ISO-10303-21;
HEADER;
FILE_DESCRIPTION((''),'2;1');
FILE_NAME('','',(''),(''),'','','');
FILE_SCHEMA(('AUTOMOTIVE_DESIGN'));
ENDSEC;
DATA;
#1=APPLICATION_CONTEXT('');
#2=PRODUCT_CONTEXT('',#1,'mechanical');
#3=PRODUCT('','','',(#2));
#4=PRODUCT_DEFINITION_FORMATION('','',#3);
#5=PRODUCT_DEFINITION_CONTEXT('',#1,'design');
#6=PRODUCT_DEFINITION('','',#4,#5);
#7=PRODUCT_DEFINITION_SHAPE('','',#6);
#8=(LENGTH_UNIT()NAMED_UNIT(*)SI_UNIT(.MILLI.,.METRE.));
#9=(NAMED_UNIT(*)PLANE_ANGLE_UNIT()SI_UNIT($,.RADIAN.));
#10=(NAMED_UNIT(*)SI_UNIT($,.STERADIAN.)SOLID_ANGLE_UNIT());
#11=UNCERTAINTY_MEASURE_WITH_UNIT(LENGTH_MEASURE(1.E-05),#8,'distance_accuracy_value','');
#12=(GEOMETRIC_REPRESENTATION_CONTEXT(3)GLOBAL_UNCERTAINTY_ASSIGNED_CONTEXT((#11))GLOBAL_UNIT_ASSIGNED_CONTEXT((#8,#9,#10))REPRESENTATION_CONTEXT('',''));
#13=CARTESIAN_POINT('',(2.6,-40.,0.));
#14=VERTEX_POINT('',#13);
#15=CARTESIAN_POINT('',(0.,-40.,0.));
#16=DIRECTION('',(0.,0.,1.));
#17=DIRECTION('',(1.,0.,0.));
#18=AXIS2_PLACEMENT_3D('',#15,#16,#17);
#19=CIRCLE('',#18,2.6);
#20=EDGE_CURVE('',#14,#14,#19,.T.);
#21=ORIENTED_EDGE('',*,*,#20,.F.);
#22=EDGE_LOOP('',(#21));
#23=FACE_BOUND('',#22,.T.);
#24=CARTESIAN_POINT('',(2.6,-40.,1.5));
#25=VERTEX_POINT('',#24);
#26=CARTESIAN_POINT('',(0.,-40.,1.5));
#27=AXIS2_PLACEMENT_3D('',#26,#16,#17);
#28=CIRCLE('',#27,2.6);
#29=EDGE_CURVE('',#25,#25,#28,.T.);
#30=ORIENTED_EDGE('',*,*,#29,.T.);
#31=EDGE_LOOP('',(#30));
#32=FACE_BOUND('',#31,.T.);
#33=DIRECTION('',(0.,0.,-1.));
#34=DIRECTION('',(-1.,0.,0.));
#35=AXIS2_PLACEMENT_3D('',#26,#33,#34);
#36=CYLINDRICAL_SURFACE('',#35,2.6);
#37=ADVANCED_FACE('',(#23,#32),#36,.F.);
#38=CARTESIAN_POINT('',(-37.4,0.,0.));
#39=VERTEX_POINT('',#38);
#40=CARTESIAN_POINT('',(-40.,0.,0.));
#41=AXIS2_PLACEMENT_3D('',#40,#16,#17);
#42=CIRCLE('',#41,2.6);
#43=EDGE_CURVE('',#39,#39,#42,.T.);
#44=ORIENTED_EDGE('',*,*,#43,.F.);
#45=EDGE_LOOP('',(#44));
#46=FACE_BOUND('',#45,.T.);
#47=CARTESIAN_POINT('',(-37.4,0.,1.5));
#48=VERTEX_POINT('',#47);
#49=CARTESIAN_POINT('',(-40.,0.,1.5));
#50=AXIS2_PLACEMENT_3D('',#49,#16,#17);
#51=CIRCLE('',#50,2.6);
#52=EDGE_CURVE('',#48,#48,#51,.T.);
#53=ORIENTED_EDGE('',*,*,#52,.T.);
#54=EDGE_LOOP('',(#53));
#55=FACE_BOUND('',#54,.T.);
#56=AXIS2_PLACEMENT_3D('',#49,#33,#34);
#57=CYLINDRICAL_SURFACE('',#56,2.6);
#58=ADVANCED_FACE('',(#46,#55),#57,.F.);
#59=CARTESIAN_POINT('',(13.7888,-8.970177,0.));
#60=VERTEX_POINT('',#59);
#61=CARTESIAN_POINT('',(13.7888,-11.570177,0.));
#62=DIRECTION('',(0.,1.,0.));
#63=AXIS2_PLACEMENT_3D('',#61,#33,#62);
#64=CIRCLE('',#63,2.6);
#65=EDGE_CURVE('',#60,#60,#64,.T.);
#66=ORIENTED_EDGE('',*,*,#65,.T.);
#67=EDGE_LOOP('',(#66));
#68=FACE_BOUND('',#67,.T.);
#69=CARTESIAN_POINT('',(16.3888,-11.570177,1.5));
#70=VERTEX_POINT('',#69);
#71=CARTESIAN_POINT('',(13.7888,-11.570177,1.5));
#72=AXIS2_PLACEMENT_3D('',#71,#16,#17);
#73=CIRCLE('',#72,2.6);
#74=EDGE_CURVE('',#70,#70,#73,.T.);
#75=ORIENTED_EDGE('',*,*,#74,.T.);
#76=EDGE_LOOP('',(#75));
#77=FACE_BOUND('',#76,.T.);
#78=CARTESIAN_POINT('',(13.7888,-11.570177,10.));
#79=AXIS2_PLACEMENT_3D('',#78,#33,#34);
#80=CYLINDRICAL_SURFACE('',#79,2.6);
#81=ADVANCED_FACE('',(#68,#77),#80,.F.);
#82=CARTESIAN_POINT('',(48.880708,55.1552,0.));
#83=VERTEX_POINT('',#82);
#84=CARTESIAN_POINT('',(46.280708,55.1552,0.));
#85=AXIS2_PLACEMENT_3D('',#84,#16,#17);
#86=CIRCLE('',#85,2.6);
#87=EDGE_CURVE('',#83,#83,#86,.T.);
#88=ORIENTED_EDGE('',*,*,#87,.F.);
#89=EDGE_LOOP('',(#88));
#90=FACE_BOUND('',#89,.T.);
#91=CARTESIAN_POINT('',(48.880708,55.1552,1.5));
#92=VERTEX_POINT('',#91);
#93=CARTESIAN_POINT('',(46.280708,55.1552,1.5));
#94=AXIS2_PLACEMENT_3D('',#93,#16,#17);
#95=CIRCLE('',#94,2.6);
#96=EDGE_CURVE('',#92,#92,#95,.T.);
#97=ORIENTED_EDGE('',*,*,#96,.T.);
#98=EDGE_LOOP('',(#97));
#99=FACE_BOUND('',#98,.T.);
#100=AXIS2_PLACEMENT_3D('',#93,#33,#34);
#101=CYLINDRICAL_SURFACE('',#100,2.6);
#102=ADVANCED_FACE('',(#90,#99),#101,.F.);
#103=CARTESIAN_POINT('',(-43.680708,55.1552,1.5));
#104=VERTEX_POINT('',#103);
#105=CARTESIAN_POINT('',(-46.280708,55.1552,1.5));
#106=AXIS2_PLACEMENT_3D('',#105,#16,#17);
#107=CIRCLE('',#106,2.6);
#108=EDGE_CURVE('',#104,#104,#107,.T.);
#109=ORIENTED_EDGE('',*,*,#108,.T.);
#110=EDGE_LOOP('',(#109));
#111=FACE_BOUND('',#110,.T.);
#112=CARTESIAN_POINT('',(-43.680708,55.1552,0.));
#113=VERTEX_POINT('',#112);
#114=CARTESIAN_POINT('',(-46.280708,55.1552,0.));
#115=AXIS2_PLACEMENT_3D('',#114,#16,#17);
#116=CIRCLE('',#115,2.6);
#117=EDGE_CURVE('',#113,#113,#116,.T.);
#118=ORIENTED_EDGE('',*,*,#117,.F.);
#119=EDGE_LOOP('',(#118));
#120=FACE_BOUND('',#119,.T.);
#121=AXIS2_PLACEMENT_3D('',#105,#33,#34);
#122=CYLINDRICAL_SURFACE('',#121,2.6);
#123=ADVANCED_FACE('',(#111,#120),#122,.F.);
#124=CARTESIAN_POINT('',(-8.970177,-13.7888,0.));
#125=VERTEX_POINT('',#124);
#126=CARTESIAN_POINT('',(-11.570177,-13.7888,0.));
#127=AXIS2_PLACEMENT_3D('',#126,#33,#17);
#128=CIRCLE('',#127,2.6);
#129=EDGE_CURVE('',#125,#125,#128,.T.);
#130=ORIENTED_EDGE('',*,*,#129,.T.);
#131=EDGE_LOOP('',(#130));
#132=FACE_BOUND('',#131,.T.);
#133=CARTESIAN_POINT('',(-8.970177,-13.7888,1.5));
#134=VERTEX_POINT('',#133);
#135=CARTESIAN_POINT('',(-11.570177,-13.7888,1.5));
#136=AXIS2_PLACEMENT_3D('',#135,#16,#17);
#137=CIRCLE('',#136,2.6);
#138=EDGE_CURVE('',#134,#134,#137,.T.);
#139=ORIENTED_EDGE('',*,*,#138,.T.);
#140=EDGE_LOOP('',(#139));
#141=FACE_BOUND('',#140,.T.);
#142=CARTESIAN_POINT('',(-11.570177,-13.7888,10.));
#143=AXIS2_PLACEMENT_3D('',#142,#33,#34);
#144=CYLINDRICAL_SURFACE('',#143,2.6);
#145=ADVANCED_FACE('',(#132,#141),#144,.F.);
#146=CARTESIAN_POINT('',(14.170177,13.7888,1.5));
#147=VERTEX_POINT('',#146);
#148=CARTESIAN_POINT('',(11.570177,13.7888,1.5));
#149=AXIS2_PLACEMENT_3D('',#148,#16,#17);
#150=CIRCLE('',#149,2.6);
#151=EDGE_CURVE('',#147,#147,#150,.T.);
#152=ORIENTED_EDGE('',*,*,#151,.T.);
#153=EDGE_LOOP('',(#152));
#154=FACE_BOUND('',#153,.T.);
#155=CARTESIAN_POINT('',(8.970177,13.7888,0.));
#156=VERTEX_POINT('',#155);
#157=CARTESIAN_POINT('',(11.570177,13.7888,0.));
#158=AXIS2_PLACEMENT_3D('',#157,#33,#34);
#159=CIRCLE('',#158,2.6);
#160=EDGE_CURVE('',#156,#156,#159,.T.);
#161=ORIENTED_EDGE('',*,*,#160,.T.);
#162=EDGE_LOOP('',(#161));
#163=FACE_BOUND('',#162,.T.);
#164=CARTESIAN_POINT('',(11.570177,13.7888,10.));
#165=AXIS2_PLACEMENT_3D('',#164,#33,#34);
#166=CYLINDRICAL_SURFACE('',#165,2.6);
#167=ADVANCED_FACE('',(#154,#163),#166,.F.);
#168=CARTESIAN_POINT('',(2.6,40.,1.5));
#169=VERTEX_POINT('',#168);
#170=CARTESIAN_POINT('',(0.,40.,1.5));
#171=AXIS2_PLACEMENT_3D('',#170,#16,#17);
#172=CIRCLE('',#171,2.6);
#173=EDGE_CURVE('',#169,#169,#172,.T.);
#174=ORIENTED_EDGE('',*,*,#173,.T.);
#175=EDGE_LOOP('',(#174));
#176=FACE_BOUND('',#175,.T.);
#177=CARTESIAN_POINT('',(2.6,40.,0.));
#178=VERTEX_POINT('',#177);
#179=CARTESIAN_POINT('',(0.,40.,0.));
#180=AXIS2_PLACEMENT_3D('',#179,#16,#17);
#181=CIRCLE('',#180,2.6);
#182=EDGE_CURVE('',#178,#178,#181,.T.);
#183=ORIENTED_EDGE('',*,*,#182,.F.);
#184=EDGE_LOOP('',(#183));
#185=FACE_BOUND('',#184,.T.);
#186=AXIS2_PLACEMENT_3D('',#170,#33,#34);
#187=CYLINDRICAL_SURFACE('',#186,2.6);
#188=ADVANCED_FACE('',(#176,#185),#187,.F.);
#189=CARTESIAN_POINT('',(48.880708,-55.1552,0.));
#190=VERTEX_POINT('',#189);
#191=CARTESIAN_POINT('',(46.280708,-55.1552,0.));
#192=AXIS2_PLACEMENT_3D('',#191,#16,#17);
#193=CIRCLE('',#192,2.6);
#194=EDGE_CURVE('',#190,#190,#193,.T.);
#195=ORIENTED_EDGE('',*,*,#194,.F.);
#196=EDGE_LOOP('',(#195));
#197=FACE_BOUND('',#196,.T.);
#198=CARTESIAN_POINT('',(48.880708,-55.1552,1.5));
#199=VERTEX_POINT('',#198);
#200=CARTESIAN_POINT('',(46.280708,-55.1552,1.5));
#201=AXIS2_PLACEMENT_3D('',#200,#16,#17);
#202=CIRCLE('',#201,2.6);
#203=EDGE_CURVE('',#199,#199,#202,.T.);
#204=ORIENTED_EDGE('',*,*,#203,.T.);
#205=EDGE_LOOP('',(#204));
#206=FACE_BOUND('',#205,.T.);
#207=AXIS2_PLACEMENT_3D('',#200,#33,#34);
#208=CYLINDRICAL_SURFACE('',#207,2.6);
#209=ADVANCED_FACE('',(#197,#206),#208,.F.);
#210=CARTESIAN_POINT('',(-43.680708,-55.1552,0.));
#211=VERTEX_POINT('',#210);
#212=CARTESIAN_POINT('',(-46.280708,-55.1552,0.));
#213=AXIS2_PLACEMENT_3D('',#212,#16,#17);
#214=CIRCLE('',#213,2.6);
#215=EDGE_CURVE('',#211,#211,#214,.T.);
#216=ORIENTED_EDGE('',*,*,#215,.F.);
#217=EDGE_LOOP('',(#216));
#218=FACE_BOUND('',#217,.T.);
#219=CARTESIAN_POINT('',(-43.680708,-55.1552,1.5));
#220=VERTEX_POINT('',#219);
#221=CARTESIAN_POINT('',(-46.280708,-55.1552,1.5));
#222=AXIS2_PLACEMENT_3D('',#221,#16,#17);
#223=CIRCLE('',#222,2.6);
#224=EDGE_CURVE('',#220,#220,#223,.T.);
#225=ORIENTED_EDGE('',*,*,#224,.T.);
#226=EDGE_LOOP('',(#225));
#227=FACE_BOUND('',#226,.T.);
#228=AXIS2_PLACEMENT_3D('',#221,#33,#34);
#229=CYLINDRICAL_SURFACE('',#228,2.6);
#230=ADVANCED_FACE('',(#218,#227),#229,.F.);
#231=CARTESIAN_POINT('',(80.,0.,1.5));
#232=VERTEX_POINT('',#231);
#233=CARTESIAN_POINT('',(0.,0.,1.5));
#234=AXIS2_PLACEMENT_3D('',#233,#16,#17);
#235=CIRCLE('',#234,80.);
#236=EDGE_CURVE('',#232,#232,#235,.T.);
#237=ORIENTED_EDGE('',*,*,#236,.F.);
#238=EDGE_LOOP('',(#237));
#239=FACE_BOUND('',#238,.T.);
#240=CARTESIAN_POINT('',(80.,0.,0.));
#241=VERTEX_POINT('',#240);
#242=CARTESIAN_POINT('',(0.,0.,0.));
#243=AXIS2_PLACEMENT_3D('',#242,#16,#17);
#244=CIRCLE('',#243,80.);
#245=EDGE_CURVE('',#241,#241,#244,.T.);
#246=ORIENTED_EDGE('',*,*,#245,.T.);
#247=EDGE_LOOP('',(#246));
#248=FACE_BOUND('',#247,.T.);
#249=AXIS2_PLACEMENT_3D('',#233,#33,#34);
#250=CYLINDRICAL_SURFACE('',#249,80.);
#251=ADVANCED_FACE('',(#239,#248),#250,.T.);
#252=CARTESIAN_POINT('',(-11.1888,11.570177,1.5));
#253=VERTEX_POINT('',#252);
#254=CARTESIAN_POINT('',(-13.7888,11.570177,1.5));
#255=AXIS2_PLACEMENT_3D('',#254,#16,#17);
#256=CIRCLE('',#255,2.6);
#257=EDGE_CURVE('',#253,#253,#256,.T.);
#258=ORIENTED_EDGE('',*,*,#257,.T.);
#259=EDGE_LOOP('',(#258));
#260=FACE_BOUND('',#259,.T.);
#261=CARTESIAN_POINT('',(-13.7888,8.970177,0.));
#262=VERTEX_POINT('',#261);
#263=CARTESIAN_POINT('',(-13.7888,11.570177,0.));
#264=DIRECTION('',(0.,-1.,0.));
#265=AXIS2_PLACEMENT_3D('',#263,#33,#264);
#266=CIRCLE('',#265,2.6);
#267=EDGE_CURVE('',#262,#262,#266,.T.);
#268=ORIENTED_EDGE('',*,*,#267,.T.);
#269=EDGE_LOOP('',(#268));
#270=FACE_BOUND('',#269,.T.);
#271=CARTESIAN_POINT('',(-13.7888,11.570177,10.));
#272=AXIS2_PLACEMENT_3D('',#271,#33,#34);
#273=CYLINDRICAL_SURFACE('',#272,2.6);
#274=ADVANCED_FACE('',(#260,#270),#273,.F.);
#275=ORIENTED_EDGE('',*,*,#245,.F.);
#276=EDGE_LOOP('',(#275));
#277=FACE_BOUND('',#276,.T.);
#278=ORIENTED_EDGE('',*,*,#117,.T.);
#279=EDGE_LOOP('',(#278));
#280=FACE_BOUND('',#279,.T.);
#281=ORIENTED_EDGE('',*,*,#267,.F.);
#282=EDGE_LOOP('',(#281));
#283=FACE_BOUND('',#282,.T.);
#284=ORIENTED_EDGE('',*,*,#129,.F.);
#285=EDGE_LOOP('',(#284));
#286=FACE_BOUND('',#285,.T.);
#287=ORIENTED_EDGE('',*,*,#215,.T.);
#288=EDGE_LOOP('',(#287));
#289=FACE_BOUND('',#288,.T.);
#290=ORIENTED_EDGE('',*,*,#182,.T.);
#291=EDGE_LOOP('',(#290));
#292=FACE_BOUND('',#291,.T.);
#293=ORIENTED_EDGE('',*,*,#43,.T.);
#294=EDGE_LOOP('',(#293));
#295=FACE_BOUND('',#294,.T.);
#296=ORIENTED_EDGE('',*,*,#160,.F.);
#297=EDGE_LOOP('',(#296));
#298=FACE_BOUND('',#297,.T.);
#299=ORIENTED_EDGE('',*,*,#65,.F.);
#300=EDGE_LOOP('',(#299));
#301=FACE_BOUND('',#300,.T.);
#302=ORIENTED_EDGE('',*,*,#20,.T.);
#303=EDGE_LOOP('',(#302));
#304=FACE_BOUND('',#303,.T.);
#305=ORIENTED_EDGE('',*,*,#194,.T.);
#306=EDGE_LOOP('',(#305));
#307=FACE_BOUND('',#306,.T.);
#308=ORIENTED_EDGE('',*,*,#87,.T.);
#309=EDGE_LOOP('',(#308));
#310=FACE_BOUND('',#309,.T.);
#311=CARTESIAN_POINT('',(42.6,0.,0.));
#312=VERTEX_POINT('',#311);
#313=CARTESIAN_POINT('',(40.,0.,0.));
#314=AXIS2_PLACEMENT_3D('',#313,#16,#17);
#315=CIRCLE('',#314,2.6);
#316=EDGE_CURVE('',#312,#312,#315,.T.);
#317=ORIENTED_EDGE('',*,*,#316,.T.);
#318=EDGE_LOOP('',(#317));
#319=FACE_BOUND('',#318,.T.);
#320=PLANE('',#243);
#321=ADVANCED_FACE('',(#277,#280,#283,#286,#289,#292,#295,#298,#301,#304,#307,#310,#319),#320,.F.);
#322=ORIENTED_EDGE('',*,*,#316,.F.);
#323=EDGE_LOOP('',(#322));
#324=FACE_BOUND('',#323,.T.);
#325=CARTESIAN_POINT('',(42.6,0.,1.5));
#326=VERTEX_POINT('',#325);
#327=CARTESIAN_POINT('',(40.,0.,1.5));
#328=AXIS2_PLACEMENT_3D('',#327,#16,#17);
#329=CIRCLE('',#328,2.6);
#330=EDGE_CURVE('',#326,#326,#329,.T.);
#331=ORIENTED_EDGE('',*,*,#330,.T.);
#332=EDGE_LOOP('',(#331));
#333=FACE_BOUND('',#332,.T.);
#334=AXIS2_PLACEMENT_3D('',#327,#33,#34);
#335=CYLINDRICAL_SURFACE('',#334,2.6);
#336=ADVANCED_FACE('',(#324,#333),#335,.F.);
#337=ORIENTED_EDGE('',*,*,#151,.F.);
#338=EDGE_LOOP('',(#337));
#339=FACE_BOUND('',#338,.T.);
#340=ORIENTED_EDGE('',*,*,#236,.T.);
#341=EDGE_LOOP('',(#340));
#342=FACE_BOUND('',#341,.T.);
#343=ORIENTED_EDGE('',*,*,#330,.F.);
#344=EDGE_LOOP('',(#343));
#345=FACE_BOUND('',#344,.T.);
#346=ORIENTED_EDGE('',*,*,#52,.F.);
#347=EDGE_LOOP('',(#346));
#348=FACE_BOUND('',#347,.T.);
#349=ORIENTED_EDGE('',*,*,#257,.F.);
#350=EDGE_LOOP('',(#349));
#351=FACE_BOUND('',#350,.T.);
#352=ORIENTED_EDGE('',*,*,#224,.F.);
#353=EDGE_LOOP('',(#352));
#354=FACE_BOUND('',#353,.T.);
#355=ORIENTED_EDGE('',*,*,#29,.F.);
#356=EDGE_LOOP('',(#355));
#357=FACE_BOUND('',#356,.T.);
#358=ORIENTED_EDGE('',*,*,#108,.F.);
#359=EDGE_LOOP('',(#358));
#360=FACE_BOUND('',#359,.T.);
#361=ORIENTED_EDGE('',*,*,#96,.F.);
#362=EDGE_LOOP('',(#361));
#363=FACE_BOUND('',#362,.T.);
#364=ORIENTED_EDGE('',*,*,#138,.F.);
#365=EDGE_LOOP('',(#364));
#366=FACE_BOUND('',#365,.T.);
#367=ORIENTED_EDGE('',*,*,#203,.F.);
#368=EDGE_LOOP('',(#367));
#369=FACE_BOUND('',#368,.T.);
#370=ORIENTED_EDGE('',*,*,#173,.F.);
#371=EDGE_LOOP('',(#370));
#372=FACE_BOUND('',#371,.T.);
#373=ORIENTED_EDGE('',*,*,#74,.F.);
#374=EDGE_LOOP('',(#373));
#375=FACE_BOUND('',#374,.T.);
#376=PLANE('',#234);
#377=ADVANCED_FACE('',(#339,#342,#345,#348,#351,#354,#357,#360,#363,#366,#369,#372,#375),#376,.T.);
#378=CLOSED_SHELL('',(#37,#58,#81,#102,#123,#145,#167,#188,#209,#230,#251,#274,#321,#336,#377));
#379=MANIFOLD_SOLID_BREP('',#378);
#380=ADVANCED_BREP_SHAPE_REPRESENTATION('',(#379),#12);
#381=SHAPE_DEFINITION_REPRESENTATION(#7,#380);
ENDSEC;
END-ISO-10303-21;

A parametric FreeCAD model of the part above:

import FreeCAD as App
import Part
import Sketcher

V = App.Vector
Q = App.Units.Quantity

doc = App.newDocument("Part")
body = doc.addObject("PartDesign::Body", "Body")

sketch1 = body.newObject("Sketcher::SketchObject", "Sketch")
sketch1.AttachmentSupport = (doc.getObject("XY_Plane"), [""])
sketch1.MapMode = "FlatFace"
sketch1.addGeometry([
    Part.Circle(V(0, 0, 0), V(0, 0, 1), 80),
    Part.Circle(V(-46.280708, -55.1552, 0), V(0, 0, 1), 2.6),
    Part.Circle(V(0, -40, 0), V(0, 0, 1), 2.6),
    Part.Circle(V(46.280708, -55.1552, 0), V(0, 0, 1), 2.6),
    Part.Circle(V(-40, 0, 0), V(0, 0, 1), 2.6),
    Part.Circle(V(-46.280708, 55.1552, 0), V(0, 0, 1), 2.6),
    Part.Circle(V(0, 40, 0), V(0, 0, 1), 2.6),
    Part.Circle(V(40, 0, 0), V(0, 0, 1), 2.6),
    Part.Circle(V(46.280708, 55.1552, 0), V(0, 0, 1), 2.6),
], False)
sketch1.addConstraint([
    Sketcher.Constraint("Coincident", 0, 3, -1, 1),
    Sketcher.Constraint("Equal", 1, 2),
    Sketcher.Constraint("Equal", 2, 3),
    Sketcher.Constraint("Equal", 3, 4),
    Sketcher.Constraint("Equal", 4, 5),
    Sketcher.Constraint("Equal", 5, 6),
    Sketcher.Constraint("Equal", 6, 7),
    Sketcher.Constraint("Equal", 7, 8),
    Sketcher.Constraint("Symmetric", 3, 3, 5, 3, -1, 1),
    Sketcher.Constraint("Symmetric", 2, 3, 6, 3, -1, 1),
    Sketcher.Constraint("Symmetric", 4, 3, 7, 3, -1, 1),
    Sketcher.Constraint("Symmetric", 1, 3, 8, 3, -1, 1),
    Sketcher.Constraint("Symmetric", 1, 3, 3, 3, -2),
    Sketcher.Constraint("PointOnObject", 2, 3, -2),
    Sketcher.Constraint("PointOnObject", 4, 3, -1),
    Sketcher.Constraint("Diameter", 0, Q("160 mm")),
    Sketcher.Constraint("Diameter", 1, Q("5.2 mm")),
    Sketcher.Constraint("DistanceY", 2, 3, -1, 1, Q("40 mm")),
    Sketcher.Constraint("DistanceX", 4, 3, -1, 1, Q("40 mm")),
    Sketcher.Constraint("DistanceY", 1, 3, -1, 1, Q("55.1552 mm")),
    Sketcher.Constraint("DistanceX", 1, 3, -1, 1, Q("46.280708 mm")),
])
pad1 = body.newObject("PartDesign::Pad", "Pad")
pad1.Profile = sketch1
pad1.Length = 1.5

sketch2 = body.newObject("Sketcher::SketchObject", "Sketch001")
sketch2.AttachmentSupport = (doc.getObject("XY_Plane"), [""])
sketch2.MapMode = "FlatFace"
sketch2.addGeometry(Part.Circle(V(11.570177, 13.7888, 0), V(0, 0, 1), 2.6), False)
sketch2.addConstraint([
    Sketcher.Constraint("Diameter", 0, Q("5.2 mm")),
    Sketcher.Constraint("DistanceY", -1, 1, 0, 3, Q("13.7888 mm")),
    Sketcher.Constraint("DistanceX", -1, 1, 0, 3, Q("11.570177 mm")),
])
pocket1 = body.newObject("PartDesign::Pocket", "Pocket")
pocket1.Profile = sketch2
pocket1.Length = 10
pocket1.Reversed = True
doc.recompute()

polarpattern = body.newObject("PartDesign::PolarPattern", "PolarPattern")
polarpattern.Originals = [pocket1]
polarpattern.Axis = (doc.getObject("Z_Axis"), [""])
polarpattern.Angle = 360
polarpattern.Occurrences = 4
body.Tip = polarpattern

doc.recompute()
